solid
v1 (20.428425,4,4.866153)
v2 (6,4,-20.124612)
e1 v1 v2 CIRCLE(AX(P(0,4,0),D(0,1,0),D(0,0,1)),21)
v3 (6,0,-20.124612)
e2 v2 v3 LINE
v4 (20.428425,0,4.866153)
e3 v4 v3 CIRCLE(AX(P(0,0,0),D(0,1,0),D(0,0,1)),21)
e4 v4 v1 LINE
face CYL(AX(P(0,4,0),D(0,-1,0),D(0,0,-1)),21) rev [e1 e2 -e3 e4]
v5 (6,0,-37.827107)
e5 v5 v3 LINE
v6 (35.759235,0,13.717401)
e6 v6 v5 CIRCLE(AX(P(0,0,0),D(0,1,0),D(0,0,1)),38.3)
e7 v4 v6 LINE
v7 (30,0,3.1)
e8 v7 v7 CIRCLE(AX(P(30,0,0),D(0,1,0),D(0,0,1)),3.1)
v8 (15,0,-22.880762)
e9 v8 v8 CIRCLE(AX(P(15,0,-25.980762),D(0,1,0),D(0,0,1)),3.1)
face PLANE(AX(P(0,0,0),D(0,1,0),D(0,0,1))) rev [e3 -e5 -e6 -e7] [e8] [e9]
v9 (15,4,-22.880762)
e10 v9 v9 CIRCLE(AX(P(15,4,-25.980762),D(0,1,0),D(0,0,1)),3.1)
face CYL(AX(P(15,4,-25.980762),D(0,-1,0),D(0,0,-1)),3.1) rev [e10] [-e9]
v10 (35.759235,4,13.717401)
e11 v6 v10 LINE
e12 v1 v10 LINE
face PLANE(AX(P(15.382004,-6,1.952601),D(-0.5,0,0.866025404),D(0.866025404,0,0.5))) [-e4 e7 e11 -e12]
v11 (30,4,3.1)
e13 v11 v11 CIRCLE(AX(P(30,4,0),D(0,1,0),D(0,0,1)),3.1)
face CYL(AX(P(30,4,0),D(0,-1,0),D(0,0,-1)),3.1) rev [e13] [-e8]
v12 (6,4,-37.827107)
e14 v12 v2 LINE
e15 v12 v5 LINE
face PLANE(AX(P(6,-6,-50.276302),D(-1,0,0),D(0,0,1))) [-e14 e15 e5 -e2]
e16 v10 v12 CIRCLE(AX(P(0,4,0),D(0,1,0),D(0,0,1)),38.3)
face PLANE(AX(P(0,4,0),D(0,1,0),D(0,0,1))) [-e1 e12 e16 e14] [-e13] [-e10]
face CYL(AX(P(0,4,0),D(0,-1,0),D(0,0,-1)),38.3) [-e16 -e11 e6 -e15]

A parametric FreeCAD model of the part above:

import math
import FreeCAD as App
import Part
import Sketcher
from FreeCAD import Vector
Q = App.Units.Quantity

doc = App.newDocument("Part")
params = doc.addObject("Spreadsheet::Sheet", "Params")
for row, (alias, value) in enumerate([
    ("sketch1_diameter", "42 mm"),
    ("sketch1_diameter2", "76.6 mm"),
    ("sketch1_diameter3", "6.2 mm"),
    ("pad1_length", "4 mm"),
    ("pocket1_length", "10 mm"),
], start=1):
    params.set(f"A{row}", alias)
    params.set(f"B{row}", "=" + value)
    params.setAlias(f"B{row}", alias)

body = doc.addObject("PartDesign::Body", "Body")

# Sketch on XZ plane
sketch1 = body.newObject("Sketcher::SketchObject", "Sketch")
sketch1.AttachmentSupport = (doc.getObject("XZ_Plane"), [""])
sketch1.MapMode = "FlatFace"
sketch1.addGeometry([
    Part.Circle(Vector(0, 0, 0), Vector(0, 0, 1), 38.3),  # 0
    Part.Circle(Vector(-15, -25.980762, 0), Vector(0, 0, 1), 3.1),  # 1
    Part.Circle(Vector(-30, 0, 0), Vector(0, 0, 1), 3.1),  # 2
    Part.Circle(Vector(-15, 25.980762, 0), Vector(0, 0, 1), 3.1),  # 3
    Part.Circle(Vector(15, -25.980762, 0), Vector(0, 0, 1), 3.1),  # 4
    Part.Circle(Vector(30, 0, 0), Vector(0, 0, 1), 3.1),  # 5
    Part.Circle(Vector(0, 0, 0), Vector(0, 0, 1), 21),  # 6
    Part.Circle(Vector(15, 25.980762, 0), Vector(0, 0, 1), 3.1),  # 7
], False)
sketch1.addConstraint([
    Sketcher.Constraint("Coincident", 0, 3, -1, 1),
    Sketcher.Constraint("Coincident", 6, 3, -1, 1),
    Sketcher.Constraint("Equal", 1, 2),
    Sketcher.Constraint("Equal", 2, 3),
    Sketcher.Constraint("Equal", 3, 4),
    Sketcher.Constraint("Equal", 4, 5),
    Sketcher.Constraint("Equal", 5, 7),
    Sketcher.Constraint("Symmetric", 3, 3, 4, 3, -1, 1),
    Sketcher.Constraint("Symmetric", 2, 3, 5, 3, -1, 1),
    Sketcher.Constraint("Symmetric", 1, 3, 7, 3, -1, 1),
    Sketcher.Constraint("Symmetric", 1, 3, 4, 3, -2),
    Sketcher.Constraint("PointOnObject", 2, 3, -1),
    Sketcher.Constraint("Diameter", 6, Q("42 mm")),
    Sketcher.Constraint("Diameter", 0, Q("76.6 mm")),
    Sketcher.Constraint("Diameter", 1, Q("6.2 mm")),
    Sketcher.Constraint("DistanceX", 1, 3, -1, 1, Q("15 mm")),
    Sketcher.Constraint("DistanceX", 2, 3, -1, 1, Q("30 mm")),
    Sketcher.Constraint("DistanceY", 1, 3, -1, 1, Q("25.980762 mm")),
])
sketch1.setExpression("Constraints[12]", "Params.sketch1_diameter")
sketch1.setExpression("Constraints[13]", "Params.sketch1_diameter2")
sketch1.setExpression("Constraints[14]", "Params.sketch1_diameter3")
pad1 = body.newObject("PartDesign::Pad", "Pad")
pad1.Profile = sketch1
pad1.setExpression("Length", "Params.pad1_length")
pad1.Reversed = True

# Sketch on XZ plane
sketch2 = body.newObject("Sketcher::SketchObject", "Sketch001")
sketch2.AttachmentSupport = (doc.getObject("XZ_Plane"), [""])
sketch2.MapMode = "FlatFace"
sketch2.AttachmentOffset = App.Placement(Vector(0, 0, -4), App.Rotation())
sketch2.addGeometry([
    Part.LineSegment(Vector(6, -14.297507, 0), Vector(6, -50.276302, 0)),
    Part.ArcOfCircle(Part.Circle(Vector(0, 0, 0), Vector(0, 0, 1), 50.633058), math.radians(23.194479), math.radians(276.805521)),
    Part.LineSegment(Vector(46.540555, 19.941999, 0), Vector(15.382004, 1.952601, 0)),
    Part.ArcOfCircle(Part.Circle(Vector(0, 0, 0), Vector(0, 0, 1), 15.505441), math.radians(-67.234468), math.radians(7.234468)),
], False)
sketch2.addConstraint([
    Sketcher.Constraint("Coincident", 0, 2, 1, 2),
    Sketcher.Constraint("Coincident", 1, 1, 2, 1),
    Sketcher.Constraint("Coincident", 2, 2, 3, 2),
    Sketcher.Constraint("Coincident", 3, 1, 0, 1),
    Sketcher.Constraint("Vertical", 0),
    Sketcher.Constraint("Coincident", 1, 3, -1, 1),
    Sketcher.Constraint("Coincident", 3, 3, -1, 1),
    Sketcher.Constraint("Angle", 2, Q("-150 deg")),
    Sketcher.Constraint("DistanceX", -1, 1, 0, 2, Q("6 mm")),
    Sketcher.Constraint("Radius", 1, Q("50.633058 mm")),
    Sketcher.Constraint("Radius", 3, Q("15.505441 mm")),
    Sketcher.Constraint("DistanceY", -1, 1, 1, 1, Q("19.941999 mm")),
])
pocket1 = body.newObject("PartDesign::Pocket", "Pocket")
pocket1.Profile = sketch2
pocket1.setExpression("Length", "Params.pocket1_length")
pocket1.Reversed = True

doc.recompute()
